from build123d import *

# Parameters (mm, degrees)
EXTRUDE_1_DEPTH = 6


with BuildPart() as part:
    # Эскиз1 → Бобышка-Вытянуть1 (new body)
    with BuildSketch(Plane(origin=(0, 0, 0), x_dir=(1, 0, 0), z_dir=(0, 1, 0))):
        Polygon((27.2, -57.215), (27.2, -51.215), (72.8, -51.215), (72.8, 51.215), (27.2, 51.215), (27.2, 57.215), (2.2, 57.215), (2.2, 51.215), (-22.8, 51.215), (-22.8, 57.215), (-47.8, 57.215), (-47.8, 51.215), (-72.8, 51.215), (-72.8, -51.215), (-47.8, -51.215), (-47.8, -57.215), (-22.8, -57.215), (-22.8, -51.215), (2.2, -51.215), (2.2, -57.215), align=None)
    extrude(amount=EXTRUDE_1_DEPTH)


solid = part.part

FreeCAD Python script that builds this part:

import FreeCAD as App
import Part
import Sketcher

V = App.Vector


def add_polygon(sketch, points):
    """Adds a closed chain of lines whose ends are joined by coincident constraints."""
    first, n = sketch.GeometryCount, len(points)
    for a, b in zip(points, points[1:] + points[:1]):
        sketch.addGeometry(Part.LineSegment(App.Vector(*a, 0), App.Vector(*b, 0)), False)
    for i in range(n):
        sketch.addConstraint(Sketcher.Constraint("Coincident", first + i, 2, first + (i + 1) % n, 1))

doc = App.newDocument("Part")
params = doc.addObject("Spreadsheet::Sheet", "Params")
for row, (alias, value) in enumerate([
    ("sketch1_width", "25 mm"),
    ("sketch1_height", "6 mm"),
    ("sketch1_width2", "45.6 mm"),
    ("sketch1_height2", "102.43 mm"),
    ("pad1_length", "6 mm"),
], start=1):
    params.set(f"A{row}", alias)
    params.set(f"B{row}", "=" + value)
    params.setAlias(f"B{row}", alias)

body = doc.addObject("PartDesign::Body", "Body")

# Sketch on XZ plane
sketch1 = body.newObject("Sketcher::SketchObject", "Sketch")
sketch1.AttachmentSupport = (doc.getObject("XZ_Plane"), [""])
sketch1.MapMode = "FlatFace"
add_polygon(sketch1, [(27, 57), (27, 51), (73, 51), (73, -51), (27, -51), (27, -57), (2, -57), (2, -51), (-23, -51), (-23, -57), (-48, -57), (-48, -51), (-73, -51), (-73, 51), (-48, 51), (-48, 57), (-23, 57), (-23, 51), (2, 51), (2, 57)])  # lines 0-19
sketch1.addConstraint([
    Sketcher.Constraint("Vertical", 0),
    Sketcher.Constraint("Horizontal", 1),
    Sketcher.Constraint("Vertical", 2),
    Sketcher.Constraint("Horizontal", 3),
    Sketcher.Constraint("Vertical", 4),
    Sketcher.Constraint("Horizontal", 5),
    Sketcher.Constraint("Vertical", 6),
    Sketcher.Constraint("Horizontal", 7),
    Sketcher.Constraint("Vertical", 8),
    Sketcher.Constraint("Horizontal", 9),
    Sketcher.Constraint("Vertical", 10),
    Sketcher.Constraint("Horizontal", 11),
    Sketcher.Constraint("Vertical", 12),
    Sketcher.Constraint("Horizontal", 13),
    Sketcher.Constraint("Vertical", 14),
    Sketcher.Constraint("Horizontal", 15),
    Sketcher.Constraint("Vertical", 16),
    Sketcher.Constraint("Horizontal", 17),
    Sketcher.Constraint("Vertical", 18),
    Sketcher.Constraint("Horizontal", 19),
    Sketcher.Constraint("Symmetric", 1, 2, 11, 2, -1, 1),
    Sketcher.Constraint("Symmetric", 0, 2, 3, 2, -1),
    Sketcher.Constraint("Symmetric", 10, 2, 13, 2, -1),
    Sketcher.Constraint("Symmetric", 8, 2, 15, 2, -1),
    Sketcher.Constraint("Symmetric", 6, 2, 17, 2, -1),
    Sketcher.Constraint("Horizontal", 3, 2, 6, 2),
    Sketcher.Constraint("Horizontal", 5, 2, 8, 2),
    Sketcher.Constraint("Horizontal", 15, 2, 18, 2),
    Sketcher.Constraint("Equal", 5, 7),
    Sketcher.Constraint("Equal", 7, 9),
    Sketcher.Constraint("Equal", 9, 11),
    Sketcher.Constraint("DistanceX", 5, 2, 5, 1, 25.0),
    Sketcher.Constraint("DistanceY", 0, 2, 0, 1, 6.0),
    Sketcher.Constraint("DistanceX", 1, 1, 1, 2, 45.6),
    Sketcher.Constraint("DistanceY", 2, 2, 2, 1, 102.43),
])
sketch1.setExpression("Constraints[51]", "Params.sketch1_width")
sketch1.setExpression("Constraints[52]", "Params.sketch1_height")
sketch1.setExpression("Constraints[53]", "Params.sketch1_width2")
sketch1.setExpression("Constraints[54]", "Params.sketch1_height2")
pad1 = body.newObject("PartDesign::Pad", "Pad")
pad1.Profile = sketch1
pad1.setExpression("Length", "Params.pad1_length")
pad1.Reversed = True

doc.recompute()
